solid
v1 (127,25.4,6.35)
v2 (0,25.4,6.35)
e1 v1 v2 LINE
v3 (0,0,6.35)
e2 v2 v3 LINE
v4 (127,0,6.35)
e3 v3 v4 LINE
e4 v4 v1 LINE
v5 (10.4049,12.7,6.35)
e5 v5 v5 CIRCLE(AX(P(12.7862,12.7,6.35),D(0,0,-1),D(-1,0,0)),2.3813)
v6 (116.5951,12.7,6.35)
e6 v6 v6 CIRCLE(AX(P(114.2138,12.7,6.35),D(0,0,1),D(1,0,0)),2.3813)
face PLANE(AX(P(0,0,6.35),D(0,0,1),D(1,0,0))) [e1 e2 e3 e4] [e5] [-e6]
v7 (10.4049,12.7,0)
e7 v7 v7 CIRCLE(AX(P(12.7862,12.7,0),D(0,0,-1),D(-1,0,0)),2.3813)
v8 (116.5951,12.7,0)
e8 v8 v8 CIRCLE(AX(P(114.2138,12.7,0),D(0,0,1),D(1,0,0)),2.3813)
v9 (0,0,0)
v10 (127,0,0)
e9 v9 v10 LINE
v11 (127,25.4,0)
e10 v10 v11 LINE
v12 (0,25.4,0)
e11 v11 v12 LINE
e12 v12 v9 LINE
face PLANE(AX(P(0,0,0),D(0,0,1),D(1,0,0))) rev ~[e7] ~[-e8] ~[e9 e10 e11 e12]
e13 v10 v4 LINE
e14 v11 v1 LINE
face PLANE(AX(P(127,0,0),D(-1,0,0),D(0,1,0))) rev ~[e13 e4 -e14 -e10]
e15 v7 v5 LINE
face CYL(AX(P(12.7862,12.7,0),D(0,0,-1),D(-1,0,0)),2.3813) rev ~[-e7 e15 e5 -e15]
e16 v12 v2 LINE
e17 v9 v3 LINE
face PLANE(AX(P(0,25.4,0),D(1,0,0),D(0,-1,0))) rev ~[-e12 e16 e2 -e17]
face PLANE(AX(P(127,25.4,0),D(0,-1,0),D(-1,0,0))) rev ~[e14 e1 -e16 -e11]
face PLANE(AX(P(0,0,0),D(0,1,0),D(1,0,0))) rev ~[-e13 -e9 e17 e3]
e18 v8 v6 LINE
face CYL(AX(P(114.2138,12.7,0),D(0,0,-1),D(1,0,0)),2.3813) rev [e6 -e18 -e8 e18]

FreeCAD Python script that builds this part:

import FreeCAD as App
import Part
import Sketcher
from FreeCAD import Vector
Q = App.Units.Quantity


def add_polygon(sketch, points):
    """Adds a closed chain of lines whose ends are joined by coincident constraints."""
    first, n = sketch.GeometryCount, len(points)
    for a, b in zip(points, points[1:] + points[:1]):
        sketch.addGeometry(Part.LineSegment(App.Vector(*a, 0), App.Vector(*b, 0)), False)
    for i in range(n):
        sketch.addConstraint(Sketcher.Constraint("Coincident", first + i, 2, first + (i + 1) % n, 1))

doc = App.newDocument("Part")
body = doc.addObject("PartDesign::Body", "Body")

# Sketch on XY plane
sketch1 = doc.addObject("Sketcher::SketchObject", "Sketch")
body.addObject(sketch1)
sketch1.AttachmentSupport = (doc.XY_Plane, [""])
sketch1.MapMode = "FlatFace"
add_polygon(sketch1, [(0, 25), (0, 0), (127, 0), (127, 25)])  # lines 0-3
sketch1.addConstraint([
    Sketcher.Constraint("Vertical", 0),
    Sketcher.Constraint("Horizontal", 1),
    Sketcher.Constraint("Vertical", 2),
    Sketcher.Constraint("Horizontal", 3),
    Sketcher.Constraint("Coincident", 0, 2, -1, 1),
    Sketcher.Constraint("DistanceX", 1, 1, 1, 2, Q("5 in")),
    Sketcher.Constraint("DistanceY", 0, 2, 0, 1, Q("1 in")),
])
pad1 = doc.addObject("PartDesign::Pad", "Pad")
body.addObject(pad1)
pad1.Profile = sketch1
pad1.Length = Q("0.25 in")

# Sketch on XY plane
sketch2 = doc.addObject("Sketcher::SketchObject", "Sketch001")
body.addObject(sketch2)
sketch2.AttachmentSupport = (doc.XY_Plane, [""])
sketch2.MapMode = "FlatFace"
sketch2.addGeometry(Part.Circle(Vector(12.8, 12.7, 0), Vector(0, 0, 1), 2.4), False)
sketch2.addConstraint([
    Sketcher.Constraint("Diameter", 0, Q("0.1875 in")),
    Sketcher.Constraint("DistanceY", -1, 1, 0, 3, Q("0.5 in")),
    Sketcher.Constraint("DistanceX", -1, 1, 0, 3, Q("0.5034 in")),
])
pocket1 = doc.addObject("PartDesign::Pocket", "Pocket")
body.addObject(pocket1)
pocket1.Profile = sketch2
pocket1.Length = Q("0.25 in")
pocket1.Reversed = True
doc.recompute()

datumplane = doc.addObject("PartDesign::Plane", "DatumPlane")
body.addObject(datumplane)
datumplane.AttachmentSupport = (doc.YZ_Plane, [""])
datumplane.MapMode = "FlatFace"
datumplane.AttachmentOffset = App.Placement(Vector(0, 0, 2.5 * 25.4), App.Rotation())
mirrored = doc.addObject("PartDesign::Mirrored", "Mirrored")
body.addObject(mirrored)
mirrored.Originals = [pocket1]
mirrored.MirrorPlane = (datumplane, [""])
body.Tip = mirrored

doc.recompute()
